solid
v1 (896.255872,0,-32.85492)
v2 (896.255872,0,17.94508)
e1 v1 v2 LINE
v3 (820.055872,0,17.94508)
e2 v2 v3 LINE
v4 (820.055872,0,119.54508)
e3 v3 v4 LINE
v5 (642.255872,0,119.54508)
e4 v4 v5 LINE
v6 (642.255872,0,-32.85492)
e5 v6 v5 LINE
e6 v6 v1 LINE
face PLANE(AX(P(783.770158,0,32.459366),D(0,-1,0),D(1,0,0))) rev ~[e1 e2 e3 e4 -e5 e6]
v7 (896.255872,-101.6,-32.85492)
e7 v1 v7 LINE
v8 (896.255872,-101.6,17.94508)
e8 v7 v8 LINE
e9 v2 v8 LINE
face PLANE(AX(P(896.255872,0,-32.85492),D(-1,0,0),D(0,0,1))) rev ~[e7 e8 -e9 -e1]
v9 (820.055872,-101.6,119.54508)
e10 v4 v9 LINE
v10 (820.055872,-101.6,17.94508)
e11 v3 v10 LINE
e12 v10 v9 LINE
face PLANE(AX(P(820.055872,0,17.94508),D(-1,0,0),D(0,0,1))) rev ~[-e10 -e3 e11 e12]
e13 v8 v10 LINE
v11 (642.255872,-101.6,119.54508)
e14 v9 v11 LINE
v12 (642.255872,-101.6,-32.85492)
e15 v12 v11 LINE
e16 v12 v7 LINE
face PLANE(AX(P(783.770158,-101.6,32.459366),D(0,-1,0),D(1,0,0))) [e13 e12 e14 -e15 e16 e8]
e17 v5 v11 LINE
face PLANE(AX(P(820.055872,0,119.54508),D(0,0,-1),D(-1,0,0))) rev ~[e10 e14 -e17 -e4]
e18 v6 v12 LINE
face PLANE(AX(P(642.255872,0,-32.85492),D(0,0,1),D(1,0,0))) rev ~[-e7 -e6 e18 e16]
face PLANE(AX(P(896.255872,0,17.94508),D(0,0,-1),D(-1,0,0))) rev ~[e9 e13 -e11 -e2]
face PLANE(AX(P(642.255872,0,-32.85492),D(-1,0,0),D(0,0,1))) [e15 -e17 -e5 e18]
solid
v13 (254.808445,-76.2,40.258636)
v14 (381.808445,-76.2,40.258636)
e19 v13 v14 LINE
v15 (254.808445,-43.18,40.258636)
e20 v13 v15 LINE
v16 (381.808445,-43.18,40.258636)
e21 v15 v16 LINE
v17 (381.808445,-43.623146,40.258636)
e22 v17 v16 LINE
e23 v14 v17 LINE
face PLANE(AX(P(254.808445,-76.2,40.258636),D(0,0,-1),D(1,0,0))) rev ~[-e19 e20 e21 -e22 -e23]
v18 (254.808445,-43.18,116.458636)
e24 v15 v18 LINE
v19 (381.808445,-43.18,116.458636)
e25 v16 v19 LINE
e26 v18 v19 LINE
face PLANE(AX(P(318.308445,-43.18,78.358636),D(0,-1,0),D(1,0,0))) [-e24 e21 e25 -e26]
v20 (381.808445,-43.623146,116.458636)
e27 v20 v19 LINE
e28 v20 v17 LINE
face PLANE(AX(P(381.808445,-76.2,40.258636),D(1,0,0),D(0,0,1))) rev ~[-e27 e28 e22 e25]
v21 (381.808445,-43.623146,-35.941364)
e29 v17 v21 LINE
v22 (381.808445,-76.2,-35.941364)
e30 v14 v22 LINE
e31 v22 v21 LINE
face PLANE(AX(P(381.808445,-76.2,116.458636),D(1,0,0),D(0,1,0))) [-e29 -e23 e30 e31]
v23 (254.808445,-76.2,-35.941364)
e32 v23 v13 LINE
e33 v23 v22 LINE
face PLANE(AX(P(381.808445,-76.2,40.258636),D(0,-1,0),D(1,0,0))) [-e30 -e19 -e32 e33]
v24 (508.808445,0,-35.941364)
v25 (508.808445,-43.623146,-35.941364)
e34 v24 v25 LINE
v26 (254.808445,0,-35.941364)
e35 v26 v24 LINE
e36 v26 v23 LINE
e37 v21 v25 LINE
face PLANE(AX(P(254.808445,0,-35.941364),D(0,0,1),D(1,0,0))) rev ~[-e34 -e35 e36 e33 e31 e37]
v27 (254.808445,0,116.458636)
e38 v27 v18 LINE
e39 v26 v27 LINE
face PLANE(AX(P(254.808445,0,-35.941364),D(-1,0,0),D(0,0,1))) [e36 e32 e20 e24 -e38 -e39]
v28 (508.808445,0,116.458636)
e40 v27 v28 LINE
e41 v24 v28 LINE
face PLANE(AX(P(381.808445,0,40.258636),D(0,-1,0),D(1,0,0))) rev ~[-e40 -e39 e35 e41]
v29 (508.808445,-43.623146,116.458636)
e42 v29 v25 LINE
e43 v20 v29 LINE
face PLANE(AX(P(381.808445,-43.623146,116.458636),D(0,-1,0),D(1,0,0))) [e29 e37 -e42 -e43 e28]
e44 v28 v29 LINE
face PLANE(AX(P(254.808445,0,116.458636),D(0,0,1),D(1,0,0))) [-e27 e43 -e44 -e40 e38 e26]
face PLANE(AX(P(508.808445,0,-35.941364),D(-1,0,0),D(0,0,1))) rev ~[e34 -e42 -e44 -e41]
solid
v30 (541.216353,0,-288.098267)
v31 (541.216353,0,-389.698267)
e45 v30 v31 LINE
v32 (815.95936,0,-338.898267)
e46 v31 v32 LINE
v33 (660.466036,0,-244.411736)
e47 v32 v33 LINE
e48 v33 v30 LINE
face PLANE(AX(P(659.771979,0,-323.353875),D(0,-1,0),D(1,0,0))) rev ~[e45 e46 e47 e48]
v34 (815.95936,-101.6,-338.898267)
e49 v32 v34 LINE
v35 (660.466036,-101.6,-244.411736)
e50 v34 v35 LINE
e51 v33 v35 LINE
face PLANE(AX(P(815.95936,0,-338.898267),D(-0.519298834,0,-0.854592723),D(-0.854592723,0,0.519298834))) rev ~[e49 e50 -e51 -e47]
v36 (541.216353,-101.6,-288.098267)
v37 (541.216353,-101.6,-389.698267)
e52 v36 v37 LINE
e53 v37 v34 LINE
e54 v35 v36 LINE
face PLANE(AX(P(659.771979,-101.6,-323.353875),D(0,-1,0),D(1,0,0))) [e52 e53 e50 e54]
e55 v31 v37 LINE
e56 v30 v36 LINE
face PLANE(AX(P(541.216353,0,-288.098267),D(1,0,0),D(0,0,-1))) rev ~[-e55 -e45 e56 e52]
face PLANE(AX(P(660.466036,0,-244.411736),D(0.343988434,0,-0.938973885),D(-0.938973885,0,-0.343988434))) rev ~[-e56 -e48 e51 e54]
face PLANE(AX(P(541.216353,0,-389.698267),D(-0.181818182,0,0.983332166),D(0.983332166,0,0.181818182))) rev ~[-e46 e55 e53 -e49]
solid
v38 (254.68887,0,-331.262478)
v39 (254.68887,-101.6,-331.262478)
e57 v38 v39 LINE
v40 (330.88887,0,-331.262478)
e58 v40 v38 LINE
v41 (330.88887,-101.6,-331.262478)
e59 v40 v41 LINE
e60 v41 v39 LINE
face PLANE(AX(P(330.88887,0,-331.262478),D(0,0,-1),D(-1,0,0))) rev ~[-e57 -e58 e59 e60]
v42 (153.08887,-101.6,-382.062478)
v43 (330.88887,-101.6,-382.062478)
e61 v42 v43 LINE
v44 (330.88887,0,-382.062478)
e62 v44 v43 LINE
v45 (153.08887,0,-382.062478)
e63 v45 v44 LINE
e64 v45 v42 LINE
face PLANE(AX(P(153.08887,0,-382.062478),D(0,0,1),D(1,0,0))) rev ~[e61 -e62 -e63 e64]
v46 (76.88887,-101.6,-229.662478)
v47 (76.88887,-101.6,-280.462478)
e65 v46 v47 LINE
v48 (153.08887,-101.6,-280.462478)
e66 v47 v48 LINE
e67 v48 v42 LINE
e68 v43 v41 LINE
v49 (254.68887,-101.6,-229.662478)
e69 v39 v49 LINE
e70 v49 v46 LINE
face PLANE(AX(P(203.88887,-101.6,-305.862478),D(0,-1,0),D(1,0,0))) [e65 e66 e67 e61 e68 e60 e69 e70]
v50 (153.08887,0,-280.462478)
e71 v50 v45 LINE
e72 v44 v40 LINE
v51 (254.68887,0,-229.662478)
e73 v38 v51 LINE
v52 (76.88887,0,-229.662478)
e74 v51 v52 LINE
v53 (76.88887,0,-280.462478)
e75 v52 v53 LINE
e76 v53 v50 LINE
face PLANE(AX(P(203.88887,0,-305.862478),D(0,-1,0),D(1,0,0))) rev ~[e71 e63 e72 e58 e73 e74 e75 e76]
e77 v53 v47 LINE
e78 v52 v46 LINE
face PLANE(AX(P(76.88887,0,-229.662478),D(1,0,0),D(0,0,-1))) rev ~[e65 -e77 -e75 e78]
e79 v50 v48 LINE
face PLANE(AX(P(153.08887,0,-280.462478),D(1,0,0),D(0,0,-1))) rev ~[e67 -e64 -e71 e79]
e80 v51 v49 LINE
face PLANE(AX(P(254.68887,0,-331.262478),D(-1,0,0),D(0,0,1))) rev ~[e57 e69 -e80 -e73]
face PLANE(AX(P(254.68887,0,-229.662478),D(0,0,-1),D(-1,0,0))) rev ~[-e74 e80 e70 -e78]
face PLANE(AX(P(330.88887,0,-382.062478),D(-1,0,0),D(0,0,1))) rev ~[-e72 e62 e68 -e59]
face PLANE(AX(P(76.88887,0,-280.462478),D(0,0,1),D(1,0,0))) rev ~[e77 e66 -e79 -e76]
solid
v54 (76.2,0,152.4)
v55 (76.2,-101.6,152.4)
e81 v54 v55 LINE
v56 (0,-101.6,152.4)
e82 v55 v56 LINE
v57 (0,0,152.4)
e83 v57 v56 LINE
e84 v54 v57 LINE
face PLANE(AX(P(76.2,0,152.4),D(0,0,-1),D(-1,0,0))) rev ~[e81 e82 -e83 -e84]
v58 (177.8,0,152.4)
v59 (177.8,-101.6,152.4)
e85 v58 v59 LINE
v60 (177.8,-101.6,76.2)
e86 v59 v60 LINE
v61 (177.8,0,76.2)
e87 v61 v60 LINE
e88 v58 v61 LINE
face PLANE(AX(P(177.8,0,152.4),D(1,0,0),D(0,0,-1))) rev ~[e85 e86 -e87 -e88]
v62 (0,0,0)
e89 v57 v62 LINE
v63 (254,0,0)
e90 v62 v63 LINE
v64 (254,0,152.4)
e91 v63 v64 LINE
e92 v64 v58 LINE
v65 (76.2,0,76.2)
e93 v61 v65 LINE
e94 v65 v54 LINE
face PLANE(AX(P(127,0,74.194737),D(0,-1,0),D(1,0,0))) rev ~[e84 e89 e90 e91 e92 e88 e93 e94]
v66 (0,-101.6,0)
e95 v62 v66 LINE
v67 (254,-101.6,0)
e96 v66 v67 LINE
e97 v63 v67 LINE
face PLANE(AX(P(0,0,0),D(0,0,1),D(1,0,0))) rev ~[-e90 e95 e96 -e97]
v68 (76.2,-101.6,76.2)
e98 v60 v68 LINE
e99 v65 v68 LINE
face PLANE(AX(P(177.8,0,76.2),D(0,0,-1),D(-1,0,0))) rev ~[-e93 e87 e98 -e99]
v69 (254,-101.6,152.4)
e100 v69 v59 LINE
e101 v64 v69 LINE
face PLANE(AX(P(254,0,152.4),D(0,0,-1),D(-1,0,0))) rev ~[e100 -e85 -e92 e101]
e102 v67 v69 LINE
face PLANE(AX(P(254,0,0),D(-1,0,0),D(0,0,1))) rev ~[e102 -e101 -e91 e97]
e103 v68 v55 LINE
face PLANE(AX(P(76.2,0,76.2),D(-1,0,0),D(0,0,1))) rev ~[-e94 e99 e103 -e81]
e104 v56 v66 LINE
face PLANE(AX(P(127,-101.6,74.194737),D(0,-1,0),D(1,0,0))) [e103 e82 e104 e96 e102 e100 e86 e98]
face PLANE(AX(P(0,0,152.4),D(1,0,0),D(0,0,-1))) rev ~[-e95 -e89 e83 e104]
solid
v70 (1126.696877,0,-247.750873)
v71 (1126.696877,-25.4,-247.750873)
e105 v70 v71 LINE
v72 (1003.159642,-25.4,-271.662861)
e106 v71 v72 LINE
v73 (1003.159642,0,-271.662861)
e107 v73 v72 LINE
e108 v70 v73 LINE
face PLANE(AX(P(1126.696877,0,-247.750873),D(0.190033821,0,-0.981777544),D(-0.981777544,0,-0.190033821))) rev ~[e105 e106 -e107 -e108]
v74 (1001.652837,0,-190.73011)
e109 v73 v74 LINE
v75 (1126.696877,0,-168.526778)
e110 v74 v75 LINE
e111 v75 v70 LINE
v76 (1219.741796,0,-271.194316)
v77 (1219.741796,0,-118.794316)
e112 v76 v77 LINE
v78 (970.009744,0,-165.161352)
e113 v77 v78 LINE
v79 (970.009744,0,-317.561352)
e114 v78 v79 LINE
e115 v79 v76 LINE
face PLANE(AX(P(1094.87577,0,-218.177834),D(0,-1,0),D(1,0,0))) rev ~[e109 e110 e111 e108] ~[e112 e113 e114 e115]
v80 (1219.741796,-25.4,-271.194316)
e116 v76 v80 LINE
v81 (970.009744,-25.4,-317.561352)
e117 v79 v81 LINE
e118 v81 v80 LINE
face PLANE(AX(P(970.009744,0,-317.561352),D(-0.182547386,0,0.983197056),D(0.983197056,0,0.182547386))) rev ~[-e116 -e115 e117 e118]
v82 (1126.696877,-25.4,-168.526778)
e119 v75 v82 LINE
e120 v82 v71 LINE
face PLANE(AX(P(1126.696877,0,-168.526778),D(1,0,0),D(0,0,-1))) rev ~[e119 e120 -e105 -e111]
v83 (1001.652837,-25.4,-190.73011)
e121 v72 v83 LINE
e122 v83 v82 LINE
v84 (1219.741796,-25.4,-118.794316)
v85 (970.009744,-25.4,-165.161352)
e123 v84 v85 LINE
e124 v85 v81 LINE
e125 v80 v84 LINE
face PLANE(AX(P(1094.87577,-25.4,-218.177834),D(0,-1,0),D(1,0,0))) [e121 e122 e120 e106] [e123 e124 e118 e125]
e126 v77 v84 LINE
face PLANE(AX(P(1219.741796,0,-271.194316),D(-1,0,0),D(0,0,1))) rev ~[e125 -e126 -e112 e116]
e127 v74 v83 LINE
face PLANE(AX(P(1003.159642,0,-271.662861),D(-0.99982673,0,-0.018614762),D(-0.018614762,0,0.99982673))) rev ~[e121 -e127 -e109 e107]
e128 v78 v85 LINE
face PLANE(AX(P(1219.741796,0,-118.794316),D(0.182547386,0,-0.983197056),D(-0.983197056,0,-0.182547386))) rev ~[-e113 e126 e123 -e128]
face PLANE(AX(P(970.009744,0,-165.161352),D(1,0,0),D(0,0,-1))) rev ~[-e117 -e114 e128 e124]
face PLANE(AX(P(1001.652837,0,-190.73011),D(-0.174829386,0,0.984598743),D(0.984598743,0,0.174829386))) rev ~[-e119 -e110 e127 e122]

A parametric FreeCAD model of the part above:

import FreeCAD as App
import Part
import Sketcher
from FreeCAD import Vector
Q = App.Units.Quantity


def add_polygon(sketch, points):
    """Adds a closed chain of lines whose ends are joined by coincident constraints."""
    first, n = sketch.GeometryCount, len(points)
    for a, b in zip(points, points[1:] + points[:1]):
        sketch.addGeometry(Part.LineSegment(App.Vector(*a, 0), App.Vector(*b, 0)), False)
    for i in range(n):
        sketch.addConstraint(Sketcher.Constraint("Coincident", first + i, 2, first + (i + 1) % n, 1))

doc = App.newDocument("Part")
params = doc.addObject("Spreadsheet::Sheet", "Params")
for row, (alias, value) in enumerate([
    ("sketch1_width", "3 in"),
    ("sketch1_width2", "4 in"),
    ("sketch1_height", "6 in"),
    ("pad1_length", "4 in"),
    ("sketch2_width", "10 in"),
    ("sketch2_height", "6 in"),
    ("pad2_length", "3 in"),
    ("sketch3_width", "5 in"),
    ("pocket1_length", "6 in"),
    ("sketch4_width", "5 in"),
    ("sketch4_height", "3 in"),
    ("pocket2_length", "1.3 in"),
    ("sketch5_width", "7 in"),
    ("sketch5_width2", "10 in"),
    ("sketch5_height", "6 in"),
    ("sketch5_height2", "2 in"),
    ("pad3_length", "4 in"),
    ("sketch6_width", "7 in"),
    ("sketch6_width2", "3 in"),
    ("sketch6_height", "2 in"),
    ("sketch6_height2", "4 in"),
    ("pad4_length", "4 in"),
    ("sketch7_height", "4 in"),
    ("sketch7_length", "5 in"),
    ("sketch7_length2", "11 in"),
    ("pad5_length", "4 in"),
    ("sketch8_height", "6 in"),
    ("sketch8_length", "10 in"),
    ("sketch8_length2", "5 in"),
    ("pad6_length", "1 in"),
], start=1):
    params.set(f"A{row}", alias)
    params.set(f"B{row}", "=" + value)
    params.setAlias(f"B{row}", alias)

body = doc.addObject("PartDesign::Body", "Body")

# Sketch on XZ plane
sketch1 = body.newObject("Sketcher::SketchObject", "Sketch")
sketch1.AttachmentSupport = (doc.getObject("XZ_Plane"), [""])
sketch1.MapMode = "FlatFace"
add_polygon(sketch1, [(254, 0), (254, 152), (178, 152), (178, 76), (76, 76), (76, 152), (0, 152), (0, 0)])  # lines 0-7
sketch1.addConstraint(Sketcher.Constraint("Vertical", 0))
sketch1.addConstraint(Sketcher.Constraint("Horizontal", 1))
sketch1.addConstraint(Sketcher.Constraint("Vertical", 2))
sketch1.addConstraint(Sketcher.Constraint("Horizontal", 3))
sketch1.addConstraint(Sketcher.Constraint("Vertical", 4))
sketch1.addConstraint(Sketcher.Constraint("Horizontal", 5))
sketch1.addConstraint(Sketcher.Constraint("Vertical", 6))
sketch1.addConstraint(Sketcher.Constraint("Horizontal", 7))
sketch1.addConstraint(Sketcher.Constraint("Coincident", 6, 2, -1, 1))
sketch1.addConstraint(Sketcher.Constraint("Horizontal", 1, 2, 4, 2))
sketch1.addConstraint(Sketcher.Constraint("Equal", 1, 5))
sketch1.addConstraint(Sketcher.Constraint("Equal", 5, 2))
sketch1.addConstraint(Sketcher.Constraint("DistanceX", 1, 2, 1, 1, Q("3 in")))
sketch1.addConstraint(Sketcher.Constraint("DistanceX", 3, 2, 3, 1, Q("4 in")))
sketch1.addConstraint(Sketcher.Constraint("DistanceY", 0, 1, 0, 2, Q("6 in")))
sketch1.setExpression("Constraints[20]", "Params.sketch1_width")
sketch1.setExpression("Constraints[21]", "Params.sketch1_width2")
sketch1.setExpression("Constraints[22]", "Params.sketch1_height")
pad1 = body.newObject("PartDesign::Pad", "Pad")
pad1.Profile = sketch1
pad1.setExpression("Length", "Params.pad1_length")
body2 = doc.addObject("PartDesign::Body", "Body001")

# Sketch on XZ plane
sketch2 = body2.newObject("Sketcher::SketchObject", "Sketch001")
sketch2.AttachmentSupport = (doc.getObject("XZ_Plane001"), [""])
sketch2.MapMode = "FlatFace"
add_polygon(sketch2, [(255, 116), (255, -36), (509, -36), (509, 116)])  # lines 0-3
sketch2.addConstraint(Sketcher.Constraint("Vertical", 0))
sketch2.addConstraint(Sketcher.Constraint("Horizontal", 1))
sketch2.addConstraint(Sketcher.Constraint("Vertical", 2))
sketch2.addConstraint(Sketcher.Constraint("Horizontal", 3))
sketch2.addConstraint(Sketcher.Constraint("DistanceX", 1, 1, 1, 2, Q("10 in")))
sketch2.addConstraint(Sketcher.Constraint("DistanceY", 0, 2, 0, 1, Q("6 in")))
sketch2.addConstraint(Sketcher.Constraint("DistanceX", -1, 1, 0, 2, Q("254.808445 mm")))
sketch2.addConstraint(Sketcher.Constraint("DistanceY", 0, 2, -1, 1, Q("35.941364 mm")))
sketch2.setExpression("Constraints[8]", "Params.sketch2_width")
sketch2.setExpression("Constraints[9]", "Params.sketch2_height")
pad2 = body2.newObject("PartDesign::Pad", "Pad001")
pad2.Profile = sketch2
pad2.setExpression("Length", "Params.pad2_length")

# Sketch on XY plane
sketch3 = body2.newObject("Sketcher::SketchObject", "Sketch002")
sketch3.AttachmentSupport = (doc.getObject("XY_Plane001"), [""])
sketch3.MapMode = "FlatFace"
sketch3.AttachmentOffset = App.Placement(Vector(0, 0, 116.458636), App.Rotation())
add_polygon(sketch3, [(382, -44), (382, -76), (509, -76), (509, -44)])  # lines 0-3
sketch3.addConstraint(Sketcher.Constraint("Vertical", 0))
sketch3.addConstraint(Sketcher.Constraint("Horizontal", 1))
sketch3.addConstraint(Sketcher.Constraint("Vertical", 2))
sketch3.addConstraint(Sketcher.Constraint("Horizontal", 3))
sketch3.addConstraint(Sketcher.Constraint("DistanceX", 1, 1, 1, 2, Q("5 in")))
sketch3.addConstraint(Sketcher.Constraint("DistanceY", 0, 2, -1, 1, Q("3 in")))
sketch3.addConstraint(Sketcher.Constraint("DistanceY", 0, 2, 0, 1, Q("32.576854 mm")))
sketch3.addConstraint(Sketcher.Constraint("DistanceX", -1, 1, 0, 2, Q("381.808445 mm")))
sketch3.setExpression("Constraints[8]", "Params.sketch3_width")
pocket1 = body2.newObject("PartDesign::Pocket", "Pocket")
pocket1.Profile = sketch3
pocket1.setExpression("Length", "Params.pocket1_length")

# Sketch on XZ plane
sketch4 = body2.newObject("Sketcher::SketchObject", "Sketch003")
sketch4.AttachmentSupport = (doc.getObject("XZ_Plane001"), [""])
sketch4.MapMode = "FlatFace"
sketch4.AttachmentOffset = App.Placement(Vector(0, 0, 3 * 25.4), App.Rotation())
add_polygon(sketch4, [(255, 116), (255, 40), (382, 40), (382, 116)])  # lines 0-3
sketch4.addConstraint(Sketcher.Constraint("Vertical", 0))
sketch4.addConstraint(Sketcher.Constraint("Horizontal", 1))
sketch4.addConstraint(Sketcher.Constraint("Vertical", 2))
sketch4.addConstraint(Sketcher.Constraint("Horizontal", 3))
sketch4.addConstraint(Sketcher.Constraint("DistanceX", 1, 1, 1, 2, Q("5 in")))
sketch4.addConstraint(Sketcher.Constraint("DistanceY", 0, 2, 0, 1, Q("3 in")))
sketch4.addConstraint(Sketcher.Constraint("DistanceX", -1, 1, 0, 2, Q("254.808445 mm")))
sketch4.addConstraint(Sketcher.Constraint("DistanceY", -1, 1, 0, 2, Q("40.258636 mm")))
sketch4.setExpression("Constraints[8]", "Params.sketch4_width")
sketch4.setExpression("Constraints[9]", "Params.sketch4_height")
pocket2 = body2.newObject("PartDesign::Pocket", "Pocket001")
pocket2.Profile = sketch4
pocket2.setExpression("Length", "Params.pocket2_length")
body3 = doc.addObject("PartDesign::Body", "Body002")

# Sketch on XZ plane
sketch5 = body3.newObject("Sketcher::SketchObject", "Sketch004")
sketch5.AttachmentSupport = (doc.getObject("XZ_Plane002"), [""])
sketch5.MapMode = "FlatFace"
add_polygon(sketch5, [(820, 120), (642, 120), (642, -33), (896, -33), (896, 18), (820, 18)])  # lines 0-5
sketch5.addConstraint(Sketcher.Constraint("Horizontal", 0))
sketch5.addConstraint(Sketcher.Constraint("Vertical", 1))
sketch5.addConstraint(Sketcher.Constraint("Horizontal", 2))
sketch5.addConstraint(Sketcher.Constraint("Vertical", 3))
sketch5.addConstraint(Sketcher.Constraint("Horizontal", 4))
sketch5.addConstraint(Sketcher.Constraint("Vertical", 5))
sketch5.addConstraint(Sketcher.Constraint("DistanceX", 0, 2, 0, 1, Q("7 in")))
sketch5.addConstraint(Sketcher.Constraint("DistanceX", 2, 1, 2, 2, Q("10 in")))
sketch5.addConstraint(Sketcher.Constraint("DistanceY", 1, 2, 1, 1, Q("6 in")))
sketch5.addConstraint(Sketcher.Constraint("DistanceY", 3, 1, 3, 2, Q("2 in")))
sketch5.addConstraint(Sketcher.Constraint("DistanceX", -1, 1, 0, 2, Q("642.255872 mm")))
sketch5.addConstraint(Sketcher.Constraint("DistanceY", -1, 1, 0, 2, Q("119.54508 mm")))
sketch5.setExpression("Constraints[12]", "Params.sketch5_width")
sketch5.setExpression("Constraints[13]", "Params.sketch5_width2")
sketch5.setExpression("Constraints[14]", "Params.sketch5_height")
sketch5.setExpression("Constraints[15]", "Params.sketch5_height2")
pad3 = body3.newObject("PartDesign::Pad", "Pad002")
pad3.Profile = sketch5
pad3.setExpression("Length", "Params.pad3_length")
body4 = doc.addObject("PartDesign::Body", "Body003")

# Sketch on XZ plane
sketch6 = body4.newObject("Sketcher::SketchObject", "Sketch005")
sketch6.AttachmentSupport = (doc.getObject("XZ_Plane003"), [""])
sketch6.MapMode = "FlatFace"
add_polygon(sketch6, [(255, -230), (77, -230), (77, -280), (153, -280), (153, -382), (331, -382), (331, -331), (255, -331)])  # lines 0-7
sketch6.addConstraint(Sketcher.Constraint("Horizontal", 0))
sketch6.addConstraint(Sketcher.Constraint("Vertical", 1))
sketch6.addConstraint(Sketcher.Constraint("Horizontal", 2))
sketch6.addConstraint(Sketcher.Constraint("Vertical", 3))
sketch6.addConstraint(Sketcher.Constraint("Horizontal", 4))
sketch6.addConstraint(Sketcher.Constraint("Vertical", 5))
sketch6.addConstraint(Sketcher.Constraint("Horizontal", 6))
sketch6.addConstraint(Sketcher.Constraint("Vertical", 7))
sketch6.addConstraint(Sketcher.Constraint("Equal", 0, 4))
sketch6.addConstraint(Sketcher.Constraint("Equal", 1, 5))
sketch6.addConstraint(Sketcher.Constraint("DistanceX", 0, 2, 0, 1, Q("7 in")))
sketch6.addConstraint(Sketcher.Constraint("DistanceX", 2, 1, 2, 2, Q("3 in")))
sketch6.addConstraint(Sketcher.Constraint("DistanceY", 1, 2, 1, 1, Q("2 in")))
sketch6.addConstraint(Sketcher.Constraint("DistanceY", 3, 2, 3, 1, Q("4 in")))
sketch6.addConstraint(Sketcher.Constraint("DistanceX", -1, 1, 0, 2, Q("76.88887 mm")))
sketch6.addConstraint(Sketcher.Constraint("DistanceY", 0, 2, -1, 1, Q("229.662478 mm")))
sketch6.setExpression("Constraints[18]", "Params.sketch6_width")
sketch6.setExpression("Constraints[19]", "Params.sketch6_width2")
sketch6.setExpression("Constraints[20]", "Params.sketch6_height")
sketch6.setExpression("Constraints[21]", "Params.sketch6_height2")
pad4 = body4.newObject("PartDesign::Pad", "Pad003")
pad4.Profile = sketch6
pad4.setExpression("Length", "Params.pad4_length")
body5 = doc.addObject("PartDesign::Body", "Body004")

# Sketch on XZ plane
sketch7 = body5.newObject("Sketcher::SketchObject", "Sketch006")
sketch7.AttachmentSupport = (doc.getObject("XZ_Plane004"), [""])
sketch7.MapMode = "FlatFace"
add_polygon(sketch7, [(660, -244), (541, -288), (541, -390), (816, -339)])  # lines 0-3
sketch7.addConstraint(Sketcher.Constraint("Vertical", 1))
sketch7.addConstraint(Sketcher.Constraint("DistanceY", 1, 2, 1, 1, Q("4 in")))
sketch7.addConstraint(Sketcher.Constraint("Distance", 0, Q("5 in")))
sketch7.addConstraint(Sketcher.Constraint("Distance", 2, Q("11 in")))
sketch7.addConstraint(Sketcher.Constraint("DistanceY", 2, 2, 0, 2, Q("2 in")))
sketch7.addConstraint(Sketcher.Constraint("DistanceX", -1, 1, 3, 2, Q("26.0025998 in")))
sketch7.addConstraint(Sketcher.Constraint("Distance", 3, Q("181.950208 mm")))
sketch7.addConstraint(Sketcher.Constraint("DistanceY", 0, 2, -1, 1, Q("288.098267 mm")))
sketch7.setExpression("Constraints[5]", "Params.sketch7_height")
sketch7.setExpression("Constraints[6]", "Params.sketch7_length")
sketch7.setExpression("Constraints[7]", "Params.sketch7_length2")
pad5 = body5.newObject("PartDesign::Pad", "Pad004")
pad5.Profile = sketch7
pad5.setExpression("Length", "Params.pad5_length")
body6 = doc.addObject("PartDesign::Body", "Body005")

# Sketch on XZ plane
sketch8 = body6.newObject("Sketcher::SketchObject", "Sketch007")
sketch8.AttachmentSupport = (doc.getObject("XZ_Plane005"), [""])
sketch8.MapMode = "FlatFace"
add_polygon(sketch8, [(1220, -271), (1220, -119), (970, -165), (970, -318)])  # lines 0-3
add_polygon(sketch8, [(1127, -248), (1003, -272), (1002, -191), (1127, -169)])  # lines 4-7
sketch8.addConstraint(Sketcher.Constraint("Vertical", 0))
sketch8.addConstraint(Sketcher.Constraint("Vertical", 2))
sketch8.addConstraint(Sketcher.Constraint("Vertical", 7))
sketch8.addConstraint(Sketcher.Constraint("Parallel", 1, 3))
sketch8.addConstraint(Sketcher.Constraint("DistanceY", 0, 1, 0, 2, Q("6 in")))
sketch8.addConstraint(Sketcher.Constraint("Distance", 1, Q("10 in")))
sketch8.addConstraint(Sketcher.Constraint("Distance", 6, Q("5 in")))
sketch8.addConstraint(Sketcher.Constraint("DistanceX", 2, 2, 4, 2, Q("33.149898 mm")))
sketch8.addConstraint(Sketcher.Constraint("Distance", 4, Q("125.83017 mm")))
sketch8.addConstraint(Sketcher.Constraint("DistanceY", 7, 2, 7, 1, Q("79.224095 mm")))
sketch8.addConstraint(Sketcher.Constraint("DistanceY", 1, 2, -1, 1, Q("165.161352 mm")))
sketch8.addConstraint(Sketcher.Constraint("DistanceX", -1, 1, 4, 2, Q("1003.159642 mm")))
sketch8.addConstraint(Sketcher.Constraint("DistanceY", 4, 2, -1, 1, Q("271.662861 mm")))
sketch8.addConstraint(Sketcher.Constraint("DistanceY", 5, 2, -1, 1, Q("190.73011 mm")))
sketch8.addConstraint(Sketcher.Constraint("DistanceY", 6, 2, -1, 1, Q("168.526778 mm")))
sketch8.addConstraint(Sketcher.Constraint("DistanceX", 5, 2, 0, 2, Q("218.088959 mm")))
sketch8.setExpression("Constraints[12]", "Params.sketch8_height")
sketch8.setExpression("Constraints[13]", "Params.sketch8_length")
sketch8.setExpression("Constraints[14]", "Params.sketch8_length2")
pad6 = body6.newObject("PartDesign::Pad", "Pad005")
pad6.Profile = sketch8
pad6.setExpression("Length", "Params.pad6_length")

doc.recompute()
